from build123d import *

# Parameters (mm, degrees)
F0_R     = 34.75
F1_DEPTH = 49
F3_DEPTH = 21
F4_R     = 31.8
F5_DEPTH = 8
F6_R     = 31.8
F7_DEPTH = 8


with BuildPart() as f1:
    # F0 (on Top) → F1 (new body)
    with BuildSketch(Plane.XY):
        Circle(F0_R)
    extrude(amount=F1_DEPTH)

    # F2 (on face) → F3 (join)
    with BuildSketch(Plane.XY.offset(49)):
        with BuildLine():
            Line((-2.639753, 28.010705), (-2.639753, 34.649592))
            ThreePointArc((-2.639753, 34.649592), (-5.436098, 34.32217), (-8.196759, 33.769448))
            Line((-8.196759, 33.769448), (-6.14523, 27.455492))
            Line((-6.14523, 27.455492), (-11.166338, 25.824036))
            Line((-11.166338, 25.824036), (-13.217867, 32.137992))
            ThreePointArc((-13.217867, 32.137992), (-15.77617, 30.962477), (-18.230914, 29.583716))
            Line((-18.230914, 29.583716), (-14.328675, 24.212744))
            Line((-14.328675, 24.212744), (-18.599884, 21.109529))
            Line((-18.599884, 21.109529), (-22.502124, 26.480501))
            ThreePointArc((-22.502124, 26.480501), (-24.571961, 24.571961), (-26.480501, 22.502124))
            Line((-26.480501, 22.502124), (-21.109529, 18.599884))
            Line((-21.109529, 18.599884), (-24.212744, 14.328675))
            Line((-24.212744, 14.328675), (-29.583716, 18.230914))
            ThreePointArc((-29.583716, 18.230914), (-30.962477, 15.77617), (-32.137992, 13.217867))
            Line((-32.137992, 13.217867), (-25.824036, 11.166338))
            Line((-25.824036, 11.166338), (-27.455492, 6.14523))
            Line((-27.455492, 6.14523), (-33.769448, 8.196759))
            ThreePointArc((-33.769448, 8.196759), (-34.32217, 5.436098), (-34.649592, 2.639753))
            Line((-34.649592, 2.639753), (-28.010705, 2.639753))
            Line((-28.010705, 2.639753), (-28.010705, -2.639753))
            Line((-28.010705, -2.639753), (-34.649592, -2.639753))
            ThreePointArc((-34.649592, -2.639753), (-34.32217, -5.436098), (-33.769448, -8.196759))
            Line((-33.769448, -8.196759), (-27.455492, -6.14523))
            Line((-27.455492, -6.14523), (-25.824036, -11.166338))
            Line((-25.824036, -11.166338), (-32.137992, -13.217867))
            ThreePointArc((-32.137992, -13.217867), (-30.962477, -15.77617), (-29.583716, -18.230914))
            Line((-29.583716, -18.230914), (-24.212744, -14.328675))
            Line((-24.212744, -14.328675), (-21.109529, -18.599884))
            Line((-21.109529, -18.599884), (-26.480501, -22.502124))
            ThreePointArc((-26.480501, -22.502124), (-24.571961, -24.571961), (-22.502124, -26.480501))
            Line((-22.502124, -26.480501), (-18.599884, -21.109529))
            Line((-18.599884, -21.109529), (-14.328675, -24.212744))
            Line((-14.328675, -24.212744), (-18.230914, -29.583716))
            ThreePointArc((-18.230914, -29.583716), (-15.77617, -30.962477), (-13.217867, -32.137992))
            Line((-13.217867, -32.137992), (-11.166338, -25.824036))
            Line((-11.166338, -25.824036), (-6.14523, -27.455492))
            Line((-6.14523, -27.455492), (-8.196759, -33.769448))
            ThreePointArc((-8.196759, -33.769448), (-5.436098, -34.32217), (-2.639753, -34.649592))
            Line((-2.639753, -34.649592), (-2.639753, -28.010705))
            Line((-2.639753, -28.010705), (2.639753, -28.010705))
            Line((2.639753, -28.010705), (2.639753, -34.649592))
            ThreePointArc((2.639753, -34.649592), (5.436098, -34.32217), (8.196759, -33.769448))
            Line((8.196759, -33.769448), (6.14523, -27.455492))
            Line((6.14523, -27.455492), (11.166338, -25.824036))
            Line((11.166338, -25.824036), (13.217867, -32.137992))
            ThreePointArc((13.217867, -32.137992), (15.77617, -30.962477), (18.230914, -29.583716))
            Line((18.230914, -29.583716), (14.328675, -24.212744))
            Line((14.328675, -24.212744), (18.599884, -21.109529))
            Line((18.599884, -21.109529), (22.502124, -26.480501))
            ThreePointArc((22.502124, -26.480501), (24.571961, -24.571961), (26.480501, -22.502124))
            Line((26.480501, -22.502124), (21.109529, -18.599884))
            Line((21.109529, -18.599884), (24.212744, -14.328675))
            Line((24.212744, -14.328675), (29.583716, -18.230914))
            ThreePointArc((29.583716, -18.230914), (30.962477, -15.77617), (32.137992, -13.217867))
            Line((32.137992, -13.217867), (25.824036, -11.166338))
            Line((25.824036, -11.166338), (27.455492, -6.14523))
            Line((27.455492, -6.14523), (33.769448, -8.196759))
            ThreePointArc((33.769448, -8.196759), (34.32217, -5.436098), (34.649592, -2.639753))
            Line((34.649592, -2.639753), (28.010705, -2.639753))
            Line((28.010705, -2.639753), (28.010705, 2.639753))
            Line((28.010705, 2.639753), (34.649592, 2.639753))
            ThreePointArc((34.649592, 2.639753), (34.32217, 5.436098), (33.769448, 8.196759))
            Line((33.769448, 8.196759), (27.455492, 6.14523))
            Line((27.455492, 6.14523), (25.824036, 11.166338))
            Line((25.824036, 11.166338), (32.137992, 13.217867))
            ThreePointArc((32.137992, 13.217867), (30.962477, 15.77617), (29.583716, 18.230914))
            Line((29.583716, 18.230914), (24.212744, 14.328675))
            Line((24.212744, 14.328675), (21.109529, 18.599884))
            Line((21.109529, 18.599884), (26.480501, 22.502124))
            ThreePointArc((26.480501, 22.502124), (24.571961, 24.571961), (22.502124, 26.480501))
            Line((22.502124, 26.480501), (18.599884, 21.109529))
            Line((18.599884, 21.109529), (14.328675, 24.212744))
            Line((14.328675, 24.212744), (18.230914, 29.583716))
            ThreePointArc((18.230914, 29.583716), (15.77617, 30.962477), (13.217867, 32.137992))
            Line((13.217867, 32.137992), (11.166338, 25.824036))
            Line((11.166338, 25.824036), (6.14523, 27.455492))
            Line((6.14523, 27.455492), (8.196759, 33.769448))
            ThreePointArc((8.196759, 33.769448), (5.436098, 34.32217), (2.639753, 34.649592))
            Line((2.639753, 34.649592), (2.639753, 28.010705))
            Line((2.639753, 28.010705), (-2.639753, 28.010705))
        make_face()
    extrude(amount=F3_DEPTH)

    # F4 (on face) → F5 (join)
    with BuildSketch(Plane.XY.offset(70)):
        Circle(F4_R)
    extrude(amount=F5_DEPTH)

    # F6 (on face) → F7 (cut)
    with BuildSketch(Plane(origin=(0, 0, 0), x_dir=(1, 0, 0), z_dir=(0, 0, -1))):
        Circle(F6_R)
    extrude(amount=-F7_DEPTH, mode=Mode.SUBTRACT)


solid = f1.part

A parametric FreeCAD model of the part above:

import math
import FreeCAD as App
import Part
import Sketcher
Q = App.Units.Quantity

doc = App.newDocument("Part")
body = doc.addObject("PartDesign::Body", "Body")

# Sketch on XY plane
sketch1 = body.newObject("Sketcher::SketchObject", "Sketch")
sketch1.AttachmentSupport = (doc.getObject("XY_Plane"), [""])
sketch1.MapMode = "FlatFace"
sketch1.addGeometry(Part.Circle(App.Vector(0, 0, 0), App.Vector(0, 0, 1), 34.75), False)
sketch1.addConstraint(Sketcher.Constraint("Coincident", 0, 3, -1, 1))
sketch1.addConstraint(Sketcher.Constraint("Diameter", 0, Q("69.5 mm")))
pad1 = body.newObject("PartDesign::Pad", "Pad")
pad1.Profile = sketch1
pad1.Length = 49

# Sketch on XY plane
sketch2 = body.newObject("Sketcher::SketchObject", "Sketch001")
sketch2.AttachmentSupport = (doc.getObject("XY_Plane"), [""])
sketch2.MapMode = "FlatFace"
sketch2.AttachmentOffset = App.Placement(App.Vector(0, 0, 49), App.Rotation())
sketch2.addGeometry(Part.LineSegment(App.Vector(-2.639753, 28.010705, 0), App.Vector(-2.639753, 34.649592, 0)), False)
sketch2.addGeometry(Part.ArcOfCircle(Part.Circle(App.Vector(-0.000007, 0.00007, 0), App.Vector(0, 0, 1), 34.74993), math.radians(94.356617), math.radians(103.643397)), False)
sketch2.addGeometry(Part.LineSegment(App.Vector(-8.196759, 33.769448, 0), App.Vector(-6.14523, 27.455492, 0)), False)
sketch2.addGeometry(Part.LineSegment(App.Vector(-6.14523, 27.455492, 0), App.Vector(-11.166338, 25.824036, 0)), False)
sketch2.addGeometry(Part.LineSegment(App.Vector(-11.166338, 25.824036, 0), App.Vector(-13.217867, 32.137992, 0)), False)
sketch2.addGeometry(Part.ArcOfCircle(Part.Circle(App.Vector(-0.000023, 0.000058, 0), App.Vector(0, 0, 1), 34.749938), math.radians(112.35662), math.radians(121.643397)), False)
sketch2.addGeometry(Part.LineSegment(App.Vector(-18.230914, 29.583716, 0), App.Vector(-14.328675, 24.212744, 0)), False)
sketch2.addGeometry(Part.LineSegment(App.Vector(-14.328675, 24.212744, 0), App.Vector(-18.599884, 21.109529, 0)), False)
sketch2.addGeometry(Part.LineSegment(App.Vector(-18.599884, 21.109529, 0), App.Vector(-22.502124, 26.480501, 0)), False)
sketch2.addGeometry(Part.ArcOfCircle(Part.Circle(App.Vector(-0.000053, 0.000053, 0), App.Vector(0, 0, 1), 34.749926), math.radians(130.35661), math.radians(139.64339)), False)
sketch2.addGeometry(Part.LineSegment(App.Vector(-26.480501, 22.502124, 0), App.Vector(-21.109529, 18.599884, 0)), False)
sketch2.addGeometry(Part.LineSegment(App.Vector(-21.109529, 18.599884, 0), App.Vector(-24.212744, 14.328675, 0)), False)
sketch2.addGeometry(Part.LineSegment(App.Vector(-24.212744, 14.328675, 0), App.Vector(-29.583716, 18.230914, 0)), False)
sketch2.addGeometry(Part.ArcOfCircle(Part.Circle(App.Vector(-0.000058, 0.000023, 0), App.Vector(0, 0, 1), 34.749938), math.radians(148.356603), math.radians(157.64338)), False)
sketch2.addGeometry(Part.LineSegment(App.Vector(-32.137992, 13.217867, 0), App.Vector(-25.824036, 11.166338, 0)), False)
sketch2.addGeometry(Part.LineSegment(App.Vector(-25.824036, 11.166338, 0), App.Vector(-27.455492, 6.14523, 0)), False)
sketch2.addGeometry(Part.LineSegment(App.Vector(-27.455492, 6.14523, 0), App.Vector(-33.769448, 8.196759, 0)), False)
sketch2.addGeometry(Part.ArcOfCircle(Part.Circle(App.Vector(-0.00007, 0.000007, 0), App.Vector(0, 0, 1), 34.74993), math.radians(166.356603), math.radians(175.643383)), False)
sketch2.addGeometry(Part.LineSegment(App.Vector(-34.649592, 2.639753, 0), App.Vector(-28.010705, 2.639753, 0)), False)
sketch2.addGeometry(Part.LineSegment(App.Vector(-28.010705, 2.639753, 0), App.Vector(-28.010705, -2.639753, 0)), False)
sketch2.addGeometry(Part.LineSegment(App.Vector(-28.010705, -2.639753, 0), App.Vector(-34.649592, -2.639753, 0)), False)
sketch2.addGeometry(Part.ArcOfCircle(Part.Circle(App.Vector(-0.00007, -0.000007, 0), App.Vector(0, 0, 1), 34.74993), math.radians(-175.643383), math.radians(-166.356603)), False)
sketch2.addGeometry(Part.LineSegment(App.Vector(-33.769448, -8.196759, 0), App.Vector(-27.455492, -6.14523, 0)), False)
sketch2.addGeometry(Part.LineSegment(App.Vector(-27.455492, -6.14523, 0), App.Vector(-25.824036, -11.166338, 0)), False)
sketch2.addGeometry(Part.LineSegment(App.Vector(-25.824036, -11.166338, 0), App.Vector(-32.137992, -13.217867, 0)), False)
sketch2.addGeometry(Part.ArcOfCircle(Part.Circle(App.Vector(-0.000058, -0.000023, 0), App.Vector(0, 0, 1), 34.749938), math.radians(-157.64338), math.radians(-148.356603)), False)
sketch2.addGeometry(Part.LineSegment(App.Vector(-29.583716, -18.230914, 0), App.Vector(-24.212744, -14.328675, 0)), False)
sketch2.addGeometry(Part.LineSegment(App.Vector(-24.212744, -14.328675, 0), App.Vector(-21.109529, -18.599884, 0)), False)
sketch2.addGeometry(Part.LineSegment(App.Vector(-21.109529, -18.599884, 0), App.Vector(-26.480501, -22.502124, 0)), False)
sketch2.addGeometry(Part.ArcOfCircle(Part.Circle(App.Vector(-0.000053, -0.000053, 0), App.Vector(0, 0, 1), 34.749926), math.radians(-139.64339), math.radians(-130.35661)), False)
sketch2.addGeometry(Part.LineSegment(App.Vector(-22.502124, -26.480501, 0), App.Vector(-18.599884, -21.109529, 0)), False)
sketch2.addGeometry(Part.LineSegment(App.Vector(-18.599884, -21.109529, 0), App.Vector(-14.328675, -24.212744, 0)), False)
sketch2.addGeometry(Part.LineSegment(App.Vector(-14.328675, -24.212744, 0), App.Vector(-18.230914, -29.583716, 0)), False)
sketch2.addGeometry(Part.ArcOfCircle(Part.Circle(App.Vector(-0.000023, -0.000058, 0), App.Vector(0, 0, 1), 34.749938), math.radians(-121.643397), math.radians(-112.35662)), False)
sketch2.addGeometry(Part.LineSegment(App.Vector(-13.217867, -32.137992, 0), App.Vector(-11.166338, -25.824036, 0)), False)
sketch2.addGeometry(Part.LineSegment(App.Vector(-11.166338, -25.824036, 0), App.Vector(-6.14523, -27.455492, 0)), False)
sketch2.addGeometry(Part.LineSegment(App.Vector(-6.14523, -27.455492, 0), App.Vector(-8.196759, -33.769448, 0)), False)
sketch2.addGeometry(Part.ArcOfCircle(Part.Circle(App.Vector(-0.000007, -0.00007, 0), App.Vector(0, 0, 1), 34.74993), math.radians(-103.643397), math.radians(-94.356617)), False)
sketch2.addGeometry(Part.LineSegment(App.Vector(-2.639753, -34.649592, 0), App.Vector(-2.639753, -28.010705, 0)), False)
sketch2.addGeometry(Part.LineSegment(App.Vector(-2.639753, -28.010705, 0), App.Vector(2.639753, -28.010705, 0)), False)
sketch2.addGeometry(Part.LineSegment(App.Vector(2.639753, -28.010705, 0), App.Vector(2.639753, -34.649592, 0)), False)
sketch2.addGeometry(Part.ArcOfCircle(Part.Circle(App.Vector(0.000007, -0.00007, 0), App.Vector(0, 0, 1), 34.74993), math.radians(-85.643383), math.radians(-76.356603)), False)
sketch2.addGeometry(Part.LineSegment(App.Vector(8.196759, -33.769448, 0), App.Vector(6.14523, -27.455492, 0)), False)
sketch2.addGeometry(Part.LineSegment(App.Vector(6.14523, -27.455492, 0), App.Vector(11.166338, -25.824036, 0)), False)
sketch2.addGeometry(Part.LineSegment(App.Vector(11.166338, -25.824036, 0), App.Vector(13.217867, -32.137992, 0)), False)
sketch2.addGeometry(Part.ArcOfCircle(Part.Circle(App.Vector(0.000023, -0.000058, 0), App.Vector(0, 0, 1), 34.749938), math.radians(-67.64338), math.radians(-58.356603)), False)
sketch2.addGeometry(Part.LineSegment(App.Vector(18.230914, -29.583716, 0), App.Vector(14.328675, -24.212744, 0)), False)
sketch2.addGeometry(Part.LineSegment(App.Vector(14.328675, -24.212744, 0), App.Vector(18.599884, -21.109529, 0)), False)
sketch2.addGeometry(Part.LineSegment(App.Vector(18.599884, -21.109529, 0), App.Vector(22.502124, -26.480501, 0)), False)
sketch2.addGeometry(Part.ArcOfCircle(Part.Circle(App.Vector(0.000053, -0.000053, 0), App.Vector(0, 0, 1), 34.749926), math.radians(-49.64339), math.radians(-40.35661)), False)
sketch2.addGeometry(Part.LineSegment(App.Vector(26.480501, -22.502124, 0), App.Vector(21.109529, -18.599884, 0)), False)
sketch2.addGeometry(Part.LineSegment(App.Vector(21.109529, -18.599884, 0), App.Vector(24.212744, -14.328675, 0)), False)
sketch2.addGeometry(Part.LineSegment(App.Vector(24.212744, -14.328675, 0), App.Vector(29.583716, -18.230914, 0)), False)
sketch2.addGeometry(Part.ArcOfCircle(Part.Circle(App.Vector(0.000058, -0.000023, 0), App.Vector(0, 0, 1), 34.749938), math.radians(-31.643397), math.radians(-22.35662)), False)
sketch2.addGeometry(Part.LineSegment(App.Vector(32.137992, -13.217867, 0), App.Vector(25.824036, -11.166338, 0)), False)
sketch2.addGeometry(Part.LineSegment(App.Vector(25.824036, -11.166338, 0), App.Vector(27.455492, -6.14523, 0)), False)
sketch2.addGeometry(Part.LineSegment(App.Vector(27.455492, -6.14523, 0), App.Vector(33.769448, -8.196759, 0)), False)
sketch2.addGeometry(Part.ArcOfCircle(Part.Circle(App.Vector(0.00007, -0.000007, 0), App.Vector(0, 0, 1), 34.74993), math.radians(-13.643397), math.radians(-4.356617)), False)
sketch2.addGeometry(Part.LineSegment(App.Vector(34.649592, -2.639753, 0), App.Vector(28.010705, -2.639753, 0)), False)
sketch2.addGeometry(Part.LineSegment(App.Vector(28.010705, -2.639753, 0), App.Vector(28.010705, 2.639753, 0)), False)
sketch2.addGeometry(Part.LineSegment(App.Vector(28.010705, 2.639753, 0), App.Vector(34.649592, 2.639753, 0)), False)
sketch2.addGeometry(Part.ArcOfCircle(Part.Circle(App.Vector(0.00007, 0.000007, 0), App.Vector(0, 0, 1), 34.74993), math.radians(4.356617), math.radians(13.643397)), False)
sketch2.addGeometry(Part.LineSegment(App.Vector(33.769448, 8.196759, 0), App.Vector(27.455492, 6.14523, 0)), False)
sketch2.addGeometry(Part.LineSegment(App.Vector(27.455492, 6.14523, 0), App.Vector(25.824036, 11.166338, 0)), False)
sketch2.addGeometry(Part.LineSegment(App.Vector(25.824036, 11.166338, 0), App.Vector(32.137992, 13.217867, 0)), False)
sketch2.addGeometry(Part.ArcOfCircle(Part.Circle(App.Vector(0.000058, 0.000023, 0), App.Vector(0, 0, 1), 34.749938), math.radians(22.35662), math.radians(31.643397)), False)
sketch2.addGeometry(Part.LineSegment(App.Vector(29.583716, 18.230914, 0), App.Vector(24.212744, 14.328675, 0)), False)
sketch2.addGeometry(Part.LineSegment(App.Vector(24.212744, 14.328675, 0), App.Vector(21.109529, 18.599884, 0)), False)
sketch2.addGeometry(Part.LineSegment(App.Vector(21.109529, 18.599884, 0), App.Vector(26.480501, 22.502124, 0)), False)
sketch2.addGeometry(Part.ArcOfCircle(Part.Circle(App.Vector(0.000053, 0.000053, 0), App.Vector(0, 0, 1), 34.749926), math.radians(40.35661), math.radians(49.64339)), False)
sketch2.addGeometry(Part.LineSegment(App.Vector(22.502124, 26.480501, 0), App.Vector(18.599884, 21.109529, 0)), False)
sketch2.addGeometry(Part.LineSegment(App.Vector(18.599884, 21.109529, 0), App.Vector(14.328675, 24.212744, 0)), False)
sketch2.addGeometry(Part.LineSegment(App.Vector(14.328675, 24.212744, 0), App.Vector(18.230914, 29.583716, 0)), False)
sketch2.addGeometry(Part.ArcOfCircle(Part.Circle(App.Vector(0.000023, 0.000058, 0), App.Vector(0, 0, 1), 34.749938), math.radians(58.356603), math.radians(67.64338)), False)
sketch2.addGeometry(Part.LineSegment(App.Vector(13.217867, 32.137992, 0), App.Vector(11.166338, 25.824036, 0)), False)
sketch2.addGeometry(Part.LineSegment(App.Vector(11.166338, 25.824036, 0), App.Vector(6.14523, 27.455492, 0)), False)
sketch2.addGeometry(Part.LineSegment(App.Vector(6.14523, 27.455492, 0), App.Vector(8.196759, 33.769448, 0)), False)
sketch2.addGeometry(Part.ArcOfCircle(Part.Circle(App.Vector(0.000007, 0.00007, 0), App.Vector(0, 0, 1), 34.74993), math.radians(76.356603), math.radians(85.643383)), False)
sketch2.addGeometry(Part.LineSegment(App.Vector(2.639753, 34.649592, 0), App.Vector(2.639753, 28.010705, 0)), False)
sketch2.addGeometry(Part.LineSegment(App.Vector(2.639753, 28.010705, 0), App.Vector(-2.639753, 28.010705, 0)), False)
sketch2.addConstraint(Sketcher.Constraint("Coincident", 0, 2, 1, 1))
sketch2.addConstraint(Sketcher.Constraint("Coincident", 1, 2, 2, 1))
sketch2.addConstraint(Sketcher.Constraint("Coincident", 2, 2, 3, 1))
sketch2.addConstraint(Sketcher.Constraint("Coincident", 3, 2, 4, 1))
sketch2.addConstraint(Sketcher.Constraint("Coincident", 4, 2, 5, 1))
sketch2.addConstraint(Sketcher.Constraint("Coincident", 5, 2, 6, 1))
sketch2.addConstraint(Sketcher.Constraint("Coincident", 6, 2, 7, 1))
sketch2.addConstraint(Sketcher.Constraint("Coincident", 7, 2, 8, 1))
sketch2.addConstraint(Sketcher.Constraint("Coincident", 8, 2, 9, 1))
sketch2.addConstraint(Sketcher.Constraint("Coincident", 9, 2, 10, 1))
sketch2.addConstraint(Sketcher.Constraint("Coincident", 10, 2, 11, 1))
sketch2.addConstraint(Sketcher.Constraint("Coincident", 11, 2, 12, 1))
sketch2.addConstraint(Sketcher.Constraint("Coincident", 12, 2, 13, 1))
sketch2.addConstraint(Sketcher.Constraint("Coincident", 13, 2, 14, 1))
sketch2.addConstraint(Sketcher.Constraint("Coincident", 14, 2, 15, 1))
sketch2.addConstraint(Sketcher.Constraint("Coincident", 15, 2, 16, 1))
sketch2.addConstraint(Sketcher.Constraint("Coincident", 16, 2, 17, 1))
sketch2.addConstraint(Sketcher.Constraint("Coincident", 17, 2, 18, 1))
sketch2.addConstraint(Sketcher.Constraint("Coincident", 18, 2, 19, 1))
sketch2.addConstraint(Sketcher.Constraint("Coincident", 19, 2, 20, 1))
sketch2.addConstraint(Sketcher.Constraint("Coincident", 20, 2, 21, 1))
sketch2.addConstraint(Sketcher.Constraint("Coincident", 21, 2, 22, 1))
sketch2.addConstraint(Sketcher.Constraint("Coincident", 22, 2, 23, 1))
sketch2.addConstraint(Sketcher.Constraint("Coincident", 23, 2, 24, 1))
sketch2.addConstraint(Sketcher.Constraint("Coincident", 24, 2, 25, 1))
sketch2.addConstraint(Sketcher.Constraint("Coincident", 25, 2, 26, 1))
sketch2.addConstraint(Sketcher.Constraint("Coincident", 26, 2, 27, 1))
sketch2.addConstraint(Sketcher.Constraint("Coincident", 27, 2, 28, 1))
sketch2.addConstraint(Sketcher.Constraint("Coincident", 28, 2, 29, 1))
sketch2.addConstraint(Sketcher.Constraint("Coincident", 29, 2, 30, 1))
sketch2.addConstraint(Sketcher.Constraint("Coincident", 30, 2, 31, 1))
sketch2.addConstraint(Sketcher.Constraint("Coincident", 31, 2, 32, 1))
sketch2.addConstraint(Sketcher.Constraint("Coincident", 32, 2, 33, 1))
sketch2.addConstraint(Sketcher.Constraint("Coincident", 33, 2, 34, 1))
sketch2.addConstraint(Sketcher.Constraint("Coincident", 34, 2, 35, 1))
sketch2.addConstraint(Sketcher.Constraint("Coincident", 35, 2, 36, 1))
sketch2.addConstraint(Sketcher.Constraint("Coincident", 36, 2, 37, 1))
sketch2.addConstraint(Sketcher.Constraint("Coincident", 37, 2, 38, 1))
sketch2.addConstraint(Sketcher.Constraint("Coincident", 38, 2, 39, 1))
sketch2.addConstraint(Sketcher.Constraint("Coincident", 39, 2, 40, 1))
sketch2.addConstraint(Sketcher.Constraint("Coincident", 40, 2, 41, 1))
sketch2.addConstraint(Sketcher.Constraint("Coincident", 41, 2, 42, 1))
sketch2.addConstraint(Sketcher.Constraint("Coincident", 42, 2, 43, 1))
sketch2.addConstraint(Sketcher.Constraint("Coincident", 43, 2, 44, 1))
sketch2.addConstraint(Sketcher.Constraint("Coincident", 44, 2, 45, 1))
sketch2.addConstraint(Sketcher.Constraint("Coincident", 45, 2, 46, 1))
sketch2.addConstraint(Sketcher.Constraint("Coincident", 46, 2, 47, 1))
sketch2.addConstraint(Sketcher.Constraint("Coincident", 47, 2, 48, 1))
sketch2.addConstraint(Sketcher.Constraint("Coincident", 48, 2, 49, 1))
sketch2.addConstraint(Sketcher.Constraint("Coincident", 49, 2, 50, 1))
sketch2.addConstraint(Sketcher.Constraint("Coincident", 50, 2, 51, 1))
sketch2.addConstraint(Sketcher.Constraint("Coincident", 51, 2, 52, 1))
sketch2.addConstraint(Sketcher.Constraint("Coincident", 52, 2, 53, 1))
sketch2.addConstraint(Sketcher.Constraint("Coincident", 53, 2, 54, 1))
sketch2.addConstraint(Sketcher.Constraint("Coincident", 54, 2, 55, 1))
sketch2.addConstraint(Sketcher.Constraint("Coincident", 55, 2, 56, 1))
sketch2.addConstraint(Sketcher.Constraint("Coincident", 56, 2, 57, 1))
sketch2.addConstraint(Sketcher.Constraint("Coincident", 57, 2, 58, 1))
sketch2.addConstraint(Sketcher.Constraint("Coincident", 58, 2, 59, 1))
sketch2.addConstraint(Sketcher.Constraint("Coincident", 59, 2, 60, 1))
sketch2.addConstraint(Sketcher.Constraint("Coincident", 60, 2, 61, 1))
sketch2.addConstraint(Sketcher.Constraint("Coincident", 61, 2, 62, 1))
sketch2.addConstraint(Sketcher.Constraint("Coincident", 62, 2, 63, 1))
sketch2.addConstraint(Sketcher.Constraint("Coincident", 63, 2, 64, 1))
sketch2.addConstraint(Sketcher.Constraint("Coincident", 64, 2, 65, 1))
sketch2.addConstraint(Sketcher.Constraint("Coincident", 65, 2, 66, 1))
sketch2.addConstraint(Sketcher.Constraint("Coincident", 66, 2, 67, 1))
sketch2.addConstraint(Sketcher.Constraint("Coincident", 67, 2, 68, 1))
sketch2.addConstraint(Sketcher.Constraint("Coincident", 68, 2, 69, 1))
sketch2.addConstraint(Sketcher.Constraint("Coincident", 69, 2, 70, 1))
sketch2.addConstraint(Sketcher.Constraint("Coincident", 70, 2, 71, 1))
sketch2.addConstraint(Sketcher.Constraint("Coincident", 71, 2, 72, 1))
sketch2.addConstraint(Sketcher.Constraint("Coincident", 72, 2, 73, 1))
sketch2.addConstraint(Sketcher.Constraint("Coincident", 73, 2, 74, 1))
sketch2.addConstraint(Sketcher.Constraint("Coincident", 74, 2, 75, 1))
sketch2.addConstraint(Sketcher.Constraint("Coincident", 75, 2, 76, 1))
sketch2.addConstraint(Sketcher.Constraint("Coincident", 76, 2, 77, 1))
sketch2.addConstraint(Sketcher.Constraint("Coincident", 77, 2, 78, 1))
sketch2.addConstraint(Sketcher.Constraint("Coincident", 78, 2, 79, 1))
sketch2.addConstraint(Sketcher.Constraint("Coincident", 79, 2, 0, 1))
sketch2.addConstraint(Sketcher.Constraint("Vertical", 0))
sketch2.addConstraint(Sketcher.Constraint("Horizontal", 18))
sketch2.addConstraint(Sketcher.Constraint("Vertical", 19))
sketch2.addConstraint(Sketcher.Constraint("Horizontal", 20))
sketch2.addConstraint(Sketcher.Constraint("Vertical", 38))
sketch2.addConstraint(Sketcher.Constraint("Horizontal", 39))
sketch2.addConstraint(Sketcher.Constraint("Vertical", 40))
sketch2.addConstraint(Sketcher.Constraint("Horizontal", 58))
sketch2.addConstraint(Sketcher.Constraint("Vertical", 59))
sketch2.addConstraint(Sketcher.Constraint("Horizontal", 60))
sketch2.addConstraint(Sketcher.Constraint("Vertical", 78))
sketch2.addConstraint(Sketcher.Constraint("Horizontal", 79))
sketch2.addConstraint(Sketcher.Constraint("Equal", 5, 13))
sketch2.addConstraint(Sketcher.Constraint("Equal", 1, 17))
sketch2.addConstraint(Sketcher.Constraint("Equal", 17, 21))
sketch2.addConstraint(Sketcher.Constraint("Equal", 13, 25))
sketch2.addConstraint(Sketcher.Constraint("Equal", 9, 29))
sketch2.addConstraint(Sketcher.Constraint("Equal", 25, 33))
sketch2.addConstraint(Sketcher.Constraint("Equal", 21, 37))
sketch2.addConstraint(Sketcher.Constraint("Equal", 37, 41))
sketch2.addConstraint(Sketcher.Constraint("Equal", 33, 45))
sketch2.addConstraint(Sketcher.Constraint("Equal", 29, 49))
sketch2.addConstraint(Sketcher.Constraint("Equal", 45, 53))
sketch2.addConstraint(Sketcher.Constraint("Equal", 41, 57))
sketch2.addConstraint(Sketcher.Constraint("Equal", 57, 61))
sketch2.addConstraint(Sketcher.Constraint("Equal", 53, 65))
sketch2.addConstraint(Sketcher.Constraint("Equal", 49, 69))
sketch2.addConstraint(Sketcher.Constraint("Equal", 65, 73))
sketch2.addConstraint(Sketcher.Constraint("Equal", 61, 77))
sketch2.addConstraint(Sketcher.Constraint("Symmetric", 1, 3, 41, 3, -1, 1))
sketch2.addConstraint(Sketcher.Constraint("Symmetric", 5, 3, 45, 3, -1, 1))
sketch2.addConstraint(Sketcher.Constraint("Symmetric", 9, 3, 49, 3, -1, 1))
sketch2.addConstraint(Sketcher.Constraint("Symmetric", 13, 3, 53, 3, -1, 1))
sketch2.addConstraint(Sketcher.Constraint("Symmetric", 17, 3, 57, 3, -1, 1))
sketch2.addConstraint(Sketcher.Constraint("Symmetric", 21, 3, 61, 3, -1, 1))
sketch2.addConstraint(Sketcher.Constraint("Symmetric", 25, 3, 65, 3, -1, 1))
sketch2.addConstraint(Sketcher.Constraint("Symmetric", 29, 3, 69, 3, -1, 1))
sketch2.addConstraint(Sketcher.Constraint("Symmetric", 33, 3, 73, 3, -1, 1))
sketch2.addConstraint(Sketcher.Constraint("Symmetric", 37, 3, 77, 3, -1, 1))
sketch2.addConstraint(Sketcher.Constraint("Symmetric", 2, 2, 42, 2, -1, 1))
sketch2.addConstraint(Sketcher.Constraint("Symmetric", 3, 2, 43, 2, -1, 1))
sketch2.addConstraint(Sketcher.Constraint("Symmetric", 6, 2, 46, 2, -1, 1))
sketch2.addConstraint(Sketcher.Constraint("Symmetric", 7, 2, 47, 2, -1, 1))
sketch2.addConstraint(Sketcher.Constraint("Symmetric", 10, 2, 50, 2, -1, 1))
sketch2.addConstraint(Sketcher.Constraint("Symmetric", 11, 2, 51, 2, -1, 1))
sketch2.addConstraint(Sketcher.Constraint("Symmetric", 14, 2, 54, 2, -1, 1))
sketch2.addConstraint(Sketcher.Constraint("Symmetric", 15, 2, 55, 2, -1, 1))
sketch2.addConstraint(Sketcher.Constraint("Symmetric", 18, 2, 58, 2, -1, 1))
sketch2.addConstraint(Sketcher.Constraint("Symmetric", 22, 2, 62, 2, -1, 1))
sketch2.addConstraint(Sketcher.Constraint("Symmetric", 23, 2, 63, 2, -1, 1))
sketch2.addConstraint(Sketcher.Constraint("Symmetric", 26, 2, 66, 2, -1, 1))
sketch2.addConstraint(Sketcher.Constraint("Symmetric", 27, 2, 67, 2, -1, 1))
sketch2.addConstraint(Sketcher.Constraint("Symmetric", 30, 2, 70, 2, -1, 1))
sketch2.addConstraint(Sketcher.Constraint("Symmetric", 31, 2, 71, 2, -1, 1))
sketch2.addConstraint(Sketcher.Constraint("Symmetric", 34, 2, 74, 2, -1, 1))
sketch2.addConstraint(Sketcher.Constraint("Symmetric", 35, 2, 75, 2, -1, 1))
sketch2.addConstraint(Sketcher.Constraint("Symmetric", 38, 2, 78, 2, -1, 1))
sketch2.addConstraint(Sketcher.Constraint("Symmetric", 37, 3, 41, 3, -2))
sketch2.addConstraint(Sketcher.Constraint("Symmetric", 33, 3, 45, 3, -2))
sketch2.addConstraint(Sketcher.Constraint("Symmetric", 29, 3, 49, 3, -2))
sketch2.addConstraint(Sketcher.Constraint("Symmetric", 25, 3, 53, 3, -2))
sketch2.addConstraint(Sketcher.Constraint("Symmetric", 21, 3, 57, 3, -2))
sketch2.addConstraint(Sketcher.Constraint("Symmetric", 35, 2, 42, 2, -2))
sketch2.addConstraint(Sketcher.Constraint("Symmetric", 34, 2, 43, 2, -2))
sketch2.addConstraint(Sketcher.Constraint("Symmetric", 31, 2, 46, 2, -2))
sketch2.addConstraint(Sketcher.Constraint("Symmetric", 30, 2, 47, 2, -2))
sketch2.addConstraint(Sketcher.Constraint("Symmetric", 27, 2, 50, 2, -2))
sketch2.addConstraint(Sketcher.Constraint("Symmetric", 26, 2, 51, 2, -2))
sketch2.addConstraint(Sketcher.Constraint("Symmetric", 23, 2, 54, 2, -2))
sketch2.addConstraint(Sketcher.Constraint("Symmetric", 22, 2, 55, 2, -2))
sketch2.addConstraint(Sketcher.Constraint("Perpendicular", 2, 3))
sketch2.addConstraint(Sketcher.Constraint("Perpendicular", 3, 4))
sketch2.addConstraint(Sketcher.Constraint("Perpendicular", 6, 7))
sketch2.addConstraint(Sketcher.Constraint("Perpendicular", 7, 8))
sketch2.addConstraint(Sketcher.Constraint("Perpendicular", 10, 11))
sketch2.addConstraint(Sketcher.Constraint("Perpendicular", 11, 12))
sketch2.addConstraint(Sketcher.Constraint("Perpendicular", 14, 15))
sketch2.addConstraint(Sketcher.Constraint("Perpendicular", 15, 16))
sketch2.addConstraint(Sketcher.Constraint("Perpendicular", 4, 22))
sketch2.addConstraint(Sketcher.Constraint("Perpendicular", 22, 23))
sketch2.addConstraint(Sketcher.Constraint("Perpendicular", 23, 24))
sketch2.addConstraint(Sketcher.Constraint("Perpendicular", 8, 26))
sketch2.addConstraint(Sketcher.Constraint("Perpendicular", 26, 27))
sketch2.addConstraint(Sketcher.Constraint("Perpendicular", 27, 28))
sketch2.addConstraint(Sketcher.Constraint("Perpendicular", 12, 30))
sketch2.addConstraint(Sketcher.Constraint("Perpendicular", 31, 32))
sketch2.addConstraint(Sketcher.Constraint("Perpendicular", 16, 34))
sketch2.addConstraint(Sketcher.Constraint("Perpendicular", 35, 36))
sketch2.addConstraint(Sketcher.Constraint("Perpendicular", 24, 42))
sketch2.addConstraint(Sketcher.Constraint("Perpendicular", 43, 44))
sketch2.addConstraint(Sketcher.Constraint("Perpendicular", 28, 46))
sketch2.addConstraint(Sketcher.Constraint("Perpendicular", 47, 48))
sketch2.addConstraint(Sketcher.Constraint("Perpendicular", 32, 50))
sketch2.addConstraint(Sketcher.Constraint("Perpendicular", 51, 52))
sketch2.addConstraint(Sketcher.Constraint("Perpendicular", 36, 54))
sketch2.addConstraint(Sketcher.Constraint("Perpendicular", 55, 56))
sketch2.addConstraint(Sketcher.Constraint("Perpendicular", 44, 62))
sketch2.addConstraint(Sketcher.Constraint("Perpendicular", 63, 64))
sketch2.addConstraint(Sketcher.Constraint("Perpendicular", 48, 66))
sketch2.addConstraint(Sketcher.Constraint("Perpendicular", 67, 68))
sketch2.addConstraint(Sketcher.Constraint("Perpendicular", 52, 70))
sketch2.addConstraint(Sketcher.Constraint("Perpendicular", 71, 72))
sketch2.addConstraint(Sketcher.Constraint("Perpendicular", 56, 74))
sketch2.addConstraint(Sketcher.Constraint("Perpendicular", 75, 76))
sketch2.addConstraint(Sketcher.Constraint("Horizontal", 37, 2, 40, 2))
sketch2.addConstraint(Sketcher.Constraint("Horizontal", 20, 2, 57, 2))
sketch2.addConstraint(Sketcher.Constraint("Horizontal", 18, 2, 59, 2))
sketch2.addConstraint(Sketcher.Constraint("Horizontal", 0, 2, 77, 2))
sketch2.addConstraint(Sketcher.Constraint("Equal", 60, 0))
sketch2.addConstraint(Sketcher.Constraint("Equal", 79, 19))
sketch2.addConstraint(Sketcher.Constraint("Equal", 2, 4))
sketch2.addConstraint(Sketcher.Constraint("Equal", 4, 6))
sketch2.addConstraint(Sketcher.Constraint("Equal", 3, 7))
sketch2.addConstraint(Sketcher.Constraint("Equal", 6, 8))
sketch2.addConstraint(Sketcher.Constraint("Equal", 8, 10))
sketch2.addConstraint(Sketcher.Constraint("Equal", 7, 11))
sketch2.addConstraint(Sketcher.Constraint("Equal", 10, 12))
sketch2.addConstraint(Sketcher.Constraint("Equal", 12, 14))
sketch2.addConstraint(Sketcher.Constraint("Equal", 11, 15))
sketch2.addConstraint(Sketcher.Constraint("Equal", 14, 16))
sketch2.addConstraint(Sketcher.Constraint("Angle", 2, Q("-71.999997 deg")))
sketch2.addConstraint(Sketcher.Constraint("Angle", 6, Q("-54.000004 deg")))
sketch2.addConstraint(Sketcher.Constraint("Radius", 1, Q("34.74993 mm")))
sketch2.addConstraint(Sketcher.Constraint("Radius", 5, Q("34.749938 mm")))
sketch2.addConstraint(Sketcher.Constraint("Radius", 9, Q("34.749926 mm")))
sketch2.addConstraint(Sketcher.Constraint("DistanceY", -1, 1, 8, 2, Q("26.480501 mm")))
sketch2.addConstraint(Sketcher.Constraint("DistanceX", 9, 2, -1, 1, Q("26.480501 mm")))
sketch2.addConstraint(Sketcher.Constraint("DistanceX", 18, 1, 18, 2, Q("6.638887 mm")))
sketch2.addConstraint(Sketcher.Constraint("DistanceX", 39, 1, 39, 2, Q("5.279506 mm")))
sketch2.addConstraint(Sketcher.Constraint("DistanceY", -1, 1, 0, 2, Q("34.649592 mm")))
sketch2.addConstraint(Sketcher.Constraint("DistanceX", 1, 2, -1, 1, Q("8.196759 mm")))
sketch2.addConstraint(Sketcher.Constraint("DistanceY", -1, 1, 1, 2, Q("33.769448 mm")))
sketch2.addConstraint(Sketcher.Constraint("DistanceX", 2, 2, -1, 1, Q("6.14523 mm")))
sketch2.addConstraint(Sketcher.Constraint("DistanceY", -1, 1, 4, 2, Q("32.137992 mm")))
sketch2.addConstraint(Sketcher.Constraint("DistanceX", 13, 2, -1, 1, Q("32.137992 mm")))
sketch2.addConstraint(Sketcher.Constraint("DistanceY", -1, 1, 15, 2, Q("6.14523 mm")))
sketch2.addConstraint(Sketcher.Constraint("DistanceX", 20, 2, -1, 1, Q("34.649592 mm")))
sketch2.addConstraint(Sketcher.Constraint("DistanceX", 5, 2, -1, 1, Q("18.230914 mm")))
sketch2.addConstraint(Sketcher.Constraint("DistanceY", -1, 1, 9, 2, Q("22.502124 mm")))
pad2 = body.newObject("PartDesign::Pad", "Pad001")
pad2.Profile = sketch2
pad2.Length = 21

# Sketch on XY plane
sketch3 = body.newObject("Sketcher::SketchObject", "Sketch002")
sketch3.AttachmentSupport = (doc.getObject("XY_Plane"), [""])
sketch3.MapMode = "FlatFace"
sketch3.AttachmentOffset = App.Placement(App.Vector(0, 0, 70), App.Rotation())
sketch3.addGeometry(Part.Circle(App.Vector(0, 0, 0), App.Vector(0, 0, 1), 31.8), False)
sketch3.addConstraint(Sketcher.Constraint("Coincident", 0, 3, -1, 1))
sketch3.addConstraint(Sketcher.Constraint("Diameter", 0, Q("63.6 mm")))
pad3 = body.newObject("PartDesign::Pad", "Pad002")
pad3.Profile = sketch3
pad3.Length = 8

# Sketch on XY plane
sketch4 = body.newObject("Sketcher::SketchObject", "Sketch003")
sketch4.AttachmentSupport = (doc.getObject("XY_Plane"), [""])
sketch4.MapMode = "FlatFace"
sketch4.addGeometry(Part.Circle(App.Vector(0, 0, 0), App.Vector(0, 0, 1), 31.8), False)
sketch4.addConstraint(Sketcher.Constraint("Coincident", 0, 3, -1, 1))
sketch4.addConstraint(Sketcher.Constraint("Diameter", 0, Q("63.6 mm")))
pocket1 = body.newObject("PartDesign::Pocket", "Pocket")
pocket1.Profile = sketch4
pocket1.Length = 8
pocket1.Reversed = True

doc.recompute()
